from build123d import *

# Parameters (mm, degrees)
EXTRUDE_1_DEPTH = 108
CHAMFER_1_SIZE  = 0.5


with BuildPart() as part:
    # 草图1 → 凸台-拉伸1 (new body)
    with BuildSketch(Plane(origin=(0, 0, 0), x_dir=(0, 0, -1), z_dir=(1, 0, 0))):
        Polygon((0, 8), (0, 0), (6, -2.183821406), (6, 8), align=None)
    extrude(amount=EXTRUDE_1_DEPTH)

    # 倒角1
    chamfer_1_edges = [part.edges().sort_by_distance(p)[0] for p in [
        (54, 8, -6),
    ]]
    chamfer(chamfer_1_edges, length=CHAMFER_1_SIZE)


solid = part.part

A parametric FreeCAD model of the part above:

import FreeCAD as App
import Part
import Sketcher
from FreeCAD import Vector
Q = App.Units.Quantity


def edges_at(feature, points):
    """Names of the edges that pass closest to the given points."""
    edges = feature.Shape.Edges
    near = lambda p: min(range(len(edges)), key=lambda i: edges[i].distToShape(Part.Vertex(*p))[0])
    return sorted({f"Edge{near(p) + 1}" for p in points})

doc = App.newDocument("Part")
params = doc.addObject("Spreadsheet::Sheet", "Params")
for row, (alias, value) in enumerate([
    ("sketch1_width", "8 mm"),
    ("sketch1_height", "6 mm"),
    ("pad1_length", "108 mm"),
    ("chamfer_size", "0.5 mm"),
], start=1):
    params.set(f"A{row}", alias)
    params.set(f"B{row}", "=" + value)
    params.setAlias(f"B{row}", alias)

body = doc.addObject("PartDesign::Body", "Body")

# Sketch on YZ plane
sketch1 = body.newObject("Sketcher::SketchObject", "Sketch")
sketch1.AttachmentSupport = (doc.getObject("YZ_Plane"), [""])
sketch1.MapMode = "FlatFace"
sketch1.addGeometry(Part.LineSegment(Vector(8, 0, 0), Vector(0, 0, 0)), False)
sketch1.addGeometry(Part.LineSegment(Vector(0, 0, 0), Vector(-2.183821, -6, 0)), False)
sketch1.addGeometry(Part.LineSegment(Vector(-2.183821, -6, 0), Vector(8, -6, 0)), False)
sketch1.addGeometry(Part.LineSegment(Vector(8, -6, 0), Vector(8, 0, 0)), False)
sketch1.addConstraint(Sketcher.Constraint("Coincident", 0, 2, 1, 1))
sketch1.addConstraint(Sketcher.Constraint("Coincident", 1, 2, 2, 1))
sketch1.addConstraint(Sketcher.Constraint("Coincident", 2, 2, 3, 1))
sketch1.addConstraint(Sketcher.Constraint("Coincident", 3, 2, 0, 1))
sketch1.addConstraint(Sketcher.Constraint("Horizontal", 0))
sketch1.addConstraint(Sketcher.Constraint("Horizontal", 2))
sketch1.addConstraint(Sketcher.Constraint("Vertical", 3))
sketch1.addConstraint(Sketcher.Constraint("Coincident", 0, 2, -1, 1))
sketch1.addConstraint(Sketcher.Constraint("DistanceX", 0, 2, 0, 1, Q("8 mm")))
sketch1.addConstraint(Sketcher.Constraint("DistanceY", 3, 1, 3, 2, Q("6 mm")))
sketch1.addConstraint(Sketcher.Constraint("Angle", 1, Q("-110 deg")))
sketch1.setExpression("Constraints[8]", "Params.sketch1_width")
sketch1.setExpression("Constraints[9]", "Params.sketch1_height")
pad1 = body.newObject("PartDesign::Pad", "Pad")
pad1.Profile = sketch1
pad1.setExpression("Length", "Params.pad1_length")
doc.recompute()

chamfer = body.newObject("PartDesign::Chamfer", "Chamfer")
chamfer.Base = (pad1, edges_at(pad1, [(54, 8, -6)]))
chamfer.setExpression("Size", "Params.chamfer_size")

doc.recompute()
